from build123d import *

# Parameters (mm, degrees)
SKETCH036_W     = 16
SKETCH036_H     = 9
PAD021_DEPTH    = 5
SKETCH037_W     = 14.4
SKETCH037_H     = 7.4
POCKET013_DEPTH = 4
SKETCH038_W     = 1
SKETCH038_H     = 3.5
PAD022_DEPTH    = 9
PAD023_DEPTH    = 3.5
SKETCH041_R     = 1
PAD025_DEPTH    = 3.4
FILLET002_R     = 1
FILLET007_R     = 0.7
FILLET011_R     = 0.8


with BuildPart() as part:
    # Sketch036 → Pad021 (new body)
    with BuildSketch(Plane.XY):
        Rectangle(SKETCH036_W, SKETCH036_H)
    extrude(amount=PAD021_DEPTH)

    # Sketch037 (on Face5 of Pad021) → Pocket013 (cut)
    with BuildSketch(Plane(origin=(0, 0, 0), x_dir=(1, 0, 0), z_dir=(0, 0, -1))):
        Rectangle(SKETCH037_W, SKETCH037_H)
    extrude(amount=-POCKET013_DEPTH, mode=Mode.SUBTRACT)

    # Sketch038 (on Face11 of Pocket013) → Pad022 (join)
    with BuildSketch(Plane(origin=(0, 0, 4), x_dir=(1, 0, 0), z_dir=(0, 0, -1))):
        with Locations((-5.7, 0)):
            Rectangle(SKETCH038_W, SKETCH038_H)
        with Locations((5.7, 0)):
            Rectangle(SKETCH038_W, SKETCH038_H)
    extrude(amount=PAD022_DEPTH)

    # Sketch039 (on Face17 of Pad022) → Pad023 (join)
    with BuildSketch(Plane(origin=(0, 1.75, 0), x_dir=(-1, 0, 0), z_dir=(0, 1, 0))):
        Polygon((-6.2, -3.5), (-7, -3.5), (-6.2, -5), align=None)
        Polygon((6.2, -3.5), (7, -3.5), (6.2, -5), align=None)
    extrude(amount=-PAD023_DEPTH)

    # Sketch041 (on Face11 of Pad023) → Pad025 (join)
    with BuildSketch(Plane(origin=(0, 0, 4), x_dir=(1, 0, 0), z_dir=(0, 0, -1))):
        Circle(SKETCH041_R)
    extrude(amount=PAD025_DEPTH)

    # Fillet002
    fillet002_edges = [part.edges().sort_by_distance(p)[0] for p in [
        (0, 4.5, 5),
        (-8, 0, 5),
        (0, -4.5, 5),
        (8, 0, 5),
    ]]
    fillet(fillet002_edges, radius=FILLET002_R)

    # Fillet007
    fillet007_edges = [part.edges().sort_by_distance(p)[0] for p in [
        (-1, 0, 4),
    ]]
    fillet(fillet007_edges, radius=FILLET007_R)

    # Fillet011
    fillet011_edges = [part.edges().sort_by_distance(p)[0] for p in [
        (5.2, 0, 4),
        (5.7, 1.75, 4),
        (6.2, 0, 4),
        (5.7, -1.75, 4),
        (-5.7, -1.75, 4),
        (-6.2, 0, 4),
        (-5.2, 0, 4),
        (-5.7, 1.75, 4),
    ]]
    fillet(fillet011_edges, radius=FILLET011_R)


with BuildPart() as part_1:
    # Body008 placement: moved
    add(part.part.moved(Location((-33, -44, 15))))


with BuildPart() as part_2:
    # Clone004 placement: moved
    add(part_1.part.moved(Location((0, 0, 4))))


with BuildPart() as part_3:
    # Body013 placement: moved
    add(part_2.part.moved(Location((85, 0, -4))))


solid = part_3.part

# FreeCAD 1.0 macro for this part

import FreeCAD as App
import Part
import Sketcher

V = App.Vector


def edges_at(feature, points):
    """Names of the edges that pass closest to the given points."""
    edges = feature.Shape.Edges
    near = lambda p: min(range(len(edges)), key=lambda i: edges[i].distToShape(Part.Vertex(*p))[0])
    return sorted({f"Edge{near(p) + 1}" for p in points})


def add_polygon(sketch, points):
    """Adds a closed chain of lines whose ends are joined by coincident constraints."""
    first, n = sketch.GeometryCount, len(points)
    for a, b in zip(points, points[1:] + points[:1]):
        sketch.addGeometry(Part.LineSegment(App.Vector(*a, 0), App.Vector(*b, 0)), False)
    for i in range(n):
        sketch.addConstraint(Sketcher.Constraint("Coincident", first + i, 2, first + (i + 1) % n, 1))

doc = App.newDocument("Part")
body = doc.addObject("PartDesign::Body", "Body")

# Sketch on XY plane
sketch1 = body.newObject("Sketcher::SketchObject", "Sketch")
sketch1.AttachmentSupport = (doc.getObject("XY_Plane"), [""])
sketch1.MapMode = "FlatFace"
add_polygon(sketch1, [(-8, 4), (-8, -4), (8, -4), (8, 4)])  # lines 0-3
sketch1.addConstraint(Sketcher.Constraint("Vertical", 0))
sketch1.addConstraint(Sketcher.Constraint("Horizontal", 1))
sketch1.addConstraint(Sketcher.Constraint("Vertical", 2))
sketch1.addConstraint(Sketcher.Constraint("Horizontal", 3))
sketch1.addConstraint(Sketcher.Constraint("Symmetric", 0, 2, 2, 2, -1, 1))
sketch1.addConstraint(Sketcher.Constraint("DistanceX", 1, 1, 1, 2, 16.0))
sketch1.addConstraint(Sketcher.Constraint("DistanceY", 0, 2, 0, 1, 9.0))
pad1 = body.newObject("PartDesign::Pad", "Pad")
pad1.Profile = sketch1
pad1.Length = 5

# Sketch on XY plane
sketch2 = body.newObject("Sketcher::SketchObject", "Sketch001")
sketch2.AttachmentSupport = (doc.getObject("XY_Plane"), [""])
sketch2.MapMode = "FlatFace"
add_polygon(sketch2, [(-7, -4), (-7, 4), (7, 4), (7, -4)])  # lines 0-3
sketch2.addConstraint(Sketcher.Constraint("Vertical", 0))
sketch2.addConstraint(Sketcher.Constraint("Horizontal", 1))
sketch2.addConstraint(Sketcher.Constraint("Vertical", 2))
sketch2.addConstraint(Sketcher.Constraint("Horizontal", 3))
sketch2.addConstraint(Sketcher.Constraint("Symmetric", 0, 2, 2, 2, -1, 1))
sketch2.addConstraint(Sketcher.Constraint("DistanceX", 1, 1, 1, 2, 14.4))
sketch2.addConstraint(Sketcher.Constraint("DistanceY", 0, 1, 0, 2, 7.4))
pocket1 = body.newObject("PartDesign::Pocket", "Pocket")
pocket1.Profile = sketch2
pocket1.Length = 4
pocket1.Reversed = True

# Sketch on XY plane
sketch3 = body.newObject("Sketcher::SketchObject", "Sketch002")
sketch3.AttachmentSupport = (doc.getObject("XY_Plane"), [""])
sketch3.MapMode = "FlatFace"
sketch3.AttachmentOffset = App.Placement(V(0, 0, 4), App.Rotation())
add_polygon(sketch3, [(-6.2, -1.8), (-6.2, 1.8), (-5.2, 1.8), (-5.2, -1.8)])  # lines 0-3
add_polygon(sketch3, [(5.2, -1.8), (5.2, 1.8), (6.2, 1.8), (6.2, -1.8)])  # lines 4-7
sketch3.addConstraint(Sketcher.Constraint("Vertical", 0))
sketch3.addConstraint(Sketcher.Constraint("Horizontal", 1))
sketch3.addConstraint(Sketcher.Constraint("Vertical", 2))
sketch3.addConstraint(Sketcher.Constraint("Horizontal", 3))
sketch3.addConstraint(Sketcher.Constraint("Vertical", 4))
sketch3.addConstraint(Sketcher.Constraint("Horizontal", 5))
sketch3.addConstraint(Sketcher.Constraint("Vertical", 6))
sketch3.addConstraint(Sketcher.Constraint("Horizontal", 7))
sketch3.addConstraint(Sketcher.Constraint("Symmetric", 2, 2, 4, 2, -1, 1))
sketch3.addConstraint(Sketcher.Constraint("Symmetric", 0, 2, 6, 2, -1, 1))
sketch3.addConstraint(Sketcher.Constraint("Horizontal", 1, 2, 4, 2))
sketch3.addConstraint(Sketcher.Constraint("DistanceX", 1, 1, 1, 2, 1.0))
sketch3.addConstraint(Sketcher.Constraint("DistanceY", 0, 1, 0, 2, 3.5))
sketch3.addConstraint(Sketcher.Constraint("DistanceX", 0, 2, -1, 1, 6.2))
pad2 = body.newObject("PartDesign::Pad", "Pad001")
pad2.Profile = sketch3
pad2.Length = 9
pad2.Reversed = True

# Sketch on XZ plane
sketch4 = body.newObject("Sketcher::SketchObject", "Sketch003")
sketch4.AttachmentSupport = (doc.getObject("XZ_Plane"), [""])
sketch4.MapMode = "FlatFace"
sketch4.AttachmentOffset = App.Placement(V(0, 0, -1.75), App.Rotation())
add_polygon(sketch4, [(6.2, -3.5), (7, -3.5), (6.2, -5)])  # lines 0-2
add_polygon(sketch4, [(-7, -3.5), (-6.2, -3.5), (-6.2, -5)])  # lines 3-5
sketch4.addConstraint(Sketcher.Constraint("Horizontal", 0))
sketch4.addConstraint(Sketcher.Constraint("Vertical", 2))
sketch4.addConstraint(Sketcher.Constraint("Horizontal", 3))
sketch4.addConstraint(Sketcher.Constraint("Vertical", 4))
sketch4.addConstraint(Sketcher.Constraint("Symmetric", 2, 2, 3, 2, -2))
sketch4.addConstraint(Sketcher.Constraint("Horizontal", 1, 2, 4, 2))
sketch4.addConstraint(Sketcher.Constraint("Equal", 0, 3))
sketch4.addConstraint(Sketcher.Constraint("DistanceX", 0, 1, 0, 2, 0.8))
sketch4.addConstraint(Sketcher.Constraint("DistanceY", 2, 1, 2, 2, 1.5))
sketch4.addConstraint(Sketcher.Constraint("DistanceX", -1, 1, 0, 2, 7.0))
sketch4.addConstraint(Sketcher.Constraint("DistanceY", 1, 2, -1, 1, 5.0))
pad3 = body.newObject("PartDesign::Pad", "Pad002")
pad3.Profile = sketch4
pad3.Length = 3.5

# Sketch on XY plane
sketch5 = body.newObject("Sketcher::SketchObject", "Sketch004")
sketch5.AttachmentSupport = (doc.getObject("XY_Plane"), [""])
sketch5.MapMode = "FlatFace"
sketch5.AttachmentOffset = App.Placement(V(0, 0, 4), App.Rotation())
sketch5.addGeometry(Part.Circle(V(0, 0, 0), V(0, 0, 1), 1), False)
sketch5.addConstraint(Sketcher.Constraint("Coincident", 0, 3, -1, 1))
sketch5.addConstraint(Sketcher.Constraint("Diameter", 0, 2.0))
pad4 = body.newObject("PartDesign::Pad", "Pad003")
pad4.Profile = sketch5
pad4.Length = 3.4
pad4.Reversed = True
doc.recompute()

fillet = body.newObject("PartDesign::Fillet", "Fillet")
fillet.Base = (pad4, edges_at(pad4, [
    (0, 4.5, 5),
    (-8, 0, 5),
    (0, -4.5, 5),
    (8, 0, 5),
]))
fillet.Radius = 1
doc.recompute()

fillet2 = body.newObject("PartDesign::Fillet", "Fillet001")
fillet2.Base = (fillet, edges_at(fillet, [(-1, 0, 4)]))
fillet2.Radius = 0.7
doc.recompute()

fillet3 = body.newObject("PartDesign::Fillet", "Fillet002")
fillet3.Base = (fillet2, edges_at(fillet2, [
    (5.2, 0, 4),
    (5.7, 1.75, 4),
    (6.2, 0, 4),
    (5.7, -1.75, 4),
    (-5.7, -1.75, 4),
    (-6.2, 0, 4),
    (-5.2, 0, 4),
    (-5.7, 1.75, 4),
]))
fillet3.Radius = 0.8
body2 = doc.addObject("PartDesign::Body", "Body001")
doc.recompute()

body.Placement = App.Placement(V(-33, -44, 15), App.Rotation(V(0, 0, 1), 0))
boolean = body2.newObject("PartDesign::Boolean", "Boolean")
boolean.Type = "Fuse"
boolean.addObjects([body])
body3 = doc.addObject("PartDesign::Body", "Body002")
doc.recompute()

body2.Placement = App.Placement(V(0, 0, 4), App.Rotation(V(0, 0, 1), 0))
boolean2 = body3.newObject("PartDesign::Boolean", "Boolean001")
boolean2.Type = "Fuse"
boolean2.addObjects([body2])
body4 = doc.addObject("PartDesign::Body", "Body003")
doc.recompute()

body3.Placement = App.Placement(V(85, 0, -4), App.Rotation(V(0, 0, 1), 0))
boolean3 = body4.newObject("PartDesign::Boolean", "Boolean002")
boolean3.Type = "Fuse"
boolean3.addObjects([body3])

doc.recompute()
